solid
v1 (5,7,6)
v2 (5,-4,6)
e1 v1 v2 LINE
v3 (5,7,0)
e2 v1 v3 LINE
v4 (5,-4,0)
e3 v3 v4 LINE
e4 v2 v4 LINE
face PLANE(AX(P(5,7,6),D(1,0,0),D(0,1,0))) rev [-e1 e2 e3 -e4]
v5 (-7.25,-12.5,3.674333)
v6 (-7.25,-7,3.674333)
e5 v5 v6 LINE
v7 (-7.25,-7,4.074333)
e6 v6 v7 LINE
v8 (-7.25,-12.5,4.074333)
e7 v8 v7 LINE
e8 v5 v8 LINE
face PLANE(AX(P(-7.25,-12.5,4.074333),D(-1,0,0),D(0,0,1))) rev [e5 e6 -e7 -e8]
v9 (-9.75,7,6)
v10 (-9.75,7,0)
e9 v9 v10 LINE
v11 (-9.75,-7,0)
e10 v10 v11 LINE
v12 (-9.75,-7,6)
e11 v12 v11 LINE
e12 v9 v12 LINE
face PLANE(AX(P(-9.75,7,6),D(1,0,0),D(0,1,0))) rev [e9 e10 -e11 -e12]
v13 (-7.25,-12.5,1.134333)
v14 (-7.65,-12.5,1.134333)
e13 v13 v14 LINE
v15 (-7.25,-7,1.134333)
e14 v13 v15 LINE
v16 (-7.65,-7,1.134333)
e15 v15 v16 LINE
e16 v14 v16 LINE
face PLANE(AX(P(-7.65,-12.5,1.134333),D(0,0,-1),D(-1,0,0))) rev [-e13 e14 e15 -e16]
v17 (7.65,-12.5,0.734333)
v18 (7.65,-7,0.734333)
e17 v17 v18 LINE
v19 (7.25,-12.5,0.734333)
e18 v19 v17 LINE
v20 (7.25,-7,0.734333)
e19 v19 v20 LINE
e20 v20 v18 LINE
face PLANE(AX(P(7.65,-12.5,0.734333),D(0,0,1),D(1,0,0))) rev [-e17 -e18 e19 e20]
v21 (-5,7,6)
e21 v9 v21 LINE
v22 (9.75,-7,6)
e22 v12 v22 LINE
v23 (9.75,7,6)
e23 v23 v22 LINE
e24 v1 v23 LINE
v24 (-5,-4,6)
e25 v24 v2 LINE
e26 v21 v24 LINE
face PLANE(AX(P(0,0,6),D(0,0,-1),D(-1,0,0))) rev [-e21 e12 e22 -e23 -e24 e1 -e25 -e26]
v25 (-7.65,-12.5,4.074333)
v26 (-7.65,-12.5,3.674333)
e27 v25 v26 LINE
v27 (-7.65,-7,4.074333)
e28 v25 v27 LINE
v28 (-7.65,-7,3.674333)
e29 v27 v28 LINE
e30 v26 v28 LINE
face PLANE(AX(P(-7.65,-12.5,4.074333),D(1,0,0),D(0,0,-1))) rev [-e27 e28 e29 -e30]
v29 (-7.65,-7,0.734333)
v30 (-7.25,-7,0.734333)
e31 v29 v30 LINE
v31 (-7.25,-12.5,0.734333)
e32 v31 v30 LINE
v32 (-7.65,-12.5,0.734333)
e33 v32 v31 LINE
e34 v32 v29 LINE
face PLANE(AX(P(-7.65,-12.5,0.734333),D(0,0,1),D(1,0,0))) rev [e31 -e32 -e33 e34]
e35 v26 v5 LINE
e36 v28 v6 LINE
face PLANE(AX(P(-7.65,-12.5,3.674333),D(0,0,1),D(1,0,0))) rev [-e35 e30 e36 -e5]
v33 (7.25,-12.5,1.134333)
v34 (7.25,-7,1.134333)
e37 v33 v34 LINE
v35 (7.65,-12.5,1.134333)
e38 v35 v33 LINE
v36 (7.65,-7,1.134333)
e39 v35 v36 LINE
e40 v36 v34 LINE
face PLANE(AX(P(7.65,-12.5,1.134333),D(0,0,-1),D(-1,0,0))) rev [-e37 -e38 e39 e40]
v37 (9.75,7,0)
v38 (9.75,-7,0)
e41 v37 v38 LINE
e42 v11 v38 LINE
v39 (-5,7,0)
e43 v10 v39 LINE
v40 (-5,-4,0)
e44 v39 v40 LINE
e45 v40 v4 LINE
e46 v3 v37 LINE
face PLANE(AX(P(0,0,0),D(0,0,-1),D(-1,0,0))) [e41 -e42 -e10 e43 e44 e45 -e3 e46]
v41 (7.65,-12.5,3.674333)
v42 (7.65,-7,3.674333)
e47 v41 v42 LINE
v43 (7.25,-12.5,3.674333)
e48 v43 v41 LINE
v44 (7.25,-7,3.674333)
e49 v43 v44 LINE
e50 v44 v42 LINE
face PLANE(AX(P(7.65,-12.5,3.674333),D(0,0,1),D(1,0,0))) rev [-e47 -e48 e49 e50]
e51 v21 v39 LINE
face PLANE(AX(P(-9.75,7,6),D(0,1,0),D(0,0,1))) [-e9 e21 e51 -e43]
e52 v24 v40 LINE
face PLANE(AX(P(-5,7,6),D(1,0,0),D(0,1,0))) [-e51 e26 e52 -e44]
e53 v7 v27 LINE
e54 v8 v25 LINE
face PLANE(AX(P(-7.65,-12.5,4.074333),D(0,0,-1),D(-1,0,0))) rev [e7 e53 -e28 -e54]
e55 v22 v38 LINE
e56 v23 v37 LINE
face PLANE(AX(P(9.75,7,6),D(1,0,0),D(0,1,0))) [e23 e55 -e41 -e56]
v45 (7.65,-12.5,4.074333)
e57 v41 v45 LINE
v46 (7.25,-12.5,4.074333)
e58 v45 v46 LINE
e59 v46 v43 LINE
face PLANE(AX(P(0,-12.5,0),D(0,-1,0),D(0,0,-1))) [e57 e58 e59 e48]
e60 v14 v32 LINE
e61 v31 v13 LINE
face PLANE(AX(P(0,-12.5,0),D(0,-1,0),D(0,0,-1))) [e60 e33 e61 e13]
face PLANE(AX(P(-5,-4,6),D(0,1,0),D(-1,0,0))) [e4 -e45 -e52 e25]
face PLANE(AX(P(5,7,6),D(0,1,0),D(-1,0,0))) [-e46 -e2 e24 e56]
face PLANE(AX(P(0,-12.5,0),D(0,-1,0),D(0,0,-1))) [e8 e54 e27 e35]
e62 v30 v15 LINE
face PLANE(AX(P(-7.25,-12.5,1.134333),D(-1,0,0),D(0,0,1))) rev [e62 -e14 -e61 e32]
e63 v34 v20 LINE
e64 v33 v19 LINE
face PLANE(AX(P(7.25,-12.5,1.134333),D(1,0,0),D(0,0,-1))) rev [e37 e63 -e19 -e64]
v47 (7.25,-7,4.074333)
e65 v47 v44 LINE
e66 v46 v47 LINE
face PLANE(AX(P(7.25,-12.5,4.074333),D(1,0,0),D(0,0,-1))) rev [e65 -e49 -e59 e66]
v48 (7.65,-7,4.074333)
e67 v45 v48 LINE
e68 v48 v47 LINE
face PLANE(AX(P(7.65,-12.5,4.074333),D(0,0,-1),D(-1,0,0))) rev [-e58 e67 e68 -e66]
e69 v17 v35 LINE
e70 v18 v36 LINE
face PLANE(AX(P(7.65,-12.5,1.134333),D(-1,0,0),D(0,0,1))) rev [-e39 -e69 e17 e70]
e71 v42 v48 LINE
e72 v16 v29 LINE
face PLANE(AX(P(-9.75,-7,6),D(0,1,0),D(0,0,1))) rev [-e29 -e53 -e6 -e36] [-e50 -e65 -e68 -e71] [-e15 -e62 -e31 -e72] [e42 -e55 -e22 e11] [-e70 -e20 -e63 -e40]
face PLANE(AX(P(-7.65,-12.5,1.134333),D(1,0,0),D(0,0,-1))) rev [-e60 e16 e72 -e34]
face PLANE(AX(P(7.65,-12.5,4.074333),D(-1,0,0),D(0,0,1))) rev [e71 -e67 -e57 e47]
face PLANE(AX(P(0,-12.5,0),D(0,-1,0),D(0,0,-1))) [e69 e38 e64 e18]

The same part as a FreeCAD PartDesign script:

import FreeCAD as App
import Part
import Sketcher

V = App.Vector
Q = App.Units.Quantity


def add_polygon(sketch, points):
    """Adds a closed chain of lines whose ends are joined by coincident constraints."""
    first, n = sketch.GeometryCount, len(points)
    for a, b in zip(points, points[1:] + points[:1]):
        sketch.addGeometry(Part.LineSegment(App.Vector(*a, 0), App.Vector(*b, 0)), False)
    for i in range(n):
        sketch.addConstraint(Sketcher.Constraint("Coincident", first + i, 2, first + (i + 1) % n, 1))

doc = App.newDocument("Part")
params = doc.addObject("Spreadsheet::Sheet", "Params")
for row, (alias, value) in enumerate([
    ("sketch1_width", "10 mm"),
    ("sketch1_height", "11 mm"),
    ("sketch1_height2", "14 mm"),
    ("sketch1_width2", "19.5 mm"),
    ("pad1_length", "6 mm"),
    ("sketch2_width", "0.4 mm"),
    ("pad2_length", "5.5 mm"),
], start=1):
    params.set(f"A{row}", alias)
    params.set(f"B{row}", "=" + value)
    params.setAlias(f"B{row}", alias)

body = doc.addObject("PartDesign::Body", "Body")

sketch1 = body.newObject("Sketcher::SketchObject", "Sketch")
sketch1.AttachmentSupport = (doc.getObject("XY_Plane"), [""])
sketch1.MapMode = "FlatFace"
add_polygon(sketch1, [(-5, -4), (-5, 7), (-9.75, 7), (-9.75, -7), (9.75, -7), (9.75, 7), (5, 7), (5, -4)])
sketch1.addConstraint(Sketcher.Constraint("Vertical", 0))
sketch1.addConstraint(Sketcher.Constraint("Horizontal", 1))
sketch1.addConstraint(Sketcher.Constraint("Vertical", 2))
sketch1.addConstraint(Sketcher.Constraint("Horizontal", 3))
sketch1.addConstraint(Sketcher.Constraint("Vertical", 4))
sketch1.addConstraint(Sketcher.Constraint("Horizontal", 5))
sketch1.addConstraint(Sketcher.Constraint("Vertical", 6))
sketch1.addConstraint(Sketcher.Constraint("Horizontal", 7))
sketch1.addConstraint(Sketcher.Constraint("Symmetric", 1, 2, 3, 2, -1, 1))
sketch1.addConstraint(Sketcher.Constraint("Symmetric", 0, 2, 5, 2, -2))
sketch1.addConstraint(Sketcher.Constraint("DistanceX", 7, 2, 7, 1, Q("10 mm")))
sketch1.addConstraint(Sketcher.Constraint("DistanceY", 0, 1, 0, 2, Q("11 mm")))
sketch1.addConstraint(Sketcher.Constraint("DistanceY", 2, 2, 2, 1, Q("14 mm")))
sketch1.addConstraint(Sketcher.Constraint("DistanceX", 3, 1, 3, 2, Q("19.5 mm")))
sketch1.setExpression("Constraints[18]", "Params.sketch1_width")
sketch1.setExpression("Constraints[19]", "Params.sketch1_height")
sketch1.setExpression("Constraints[20]", "Params.sketch1_height2")
sketch1.setExpression("Constraints[21]", "Params.sketch1_width2")
pad1 = body.newObject("PartDesign::Pad", "Pad")
pad1.Profile = sketch1
pad1.setExpression("Length", "Params.pad1_length")

sketch2 = body.newObject("Sketcher::SketchObject", "Sketch001")
sketch2.AttachmentSupport = (doc.getObject("XZ_Plane"), [""])
sketch2.MapMode = "FlatFace"
sketch2.AttachmentOffset = App.Placement(V(0, 0, 7), App.Rotation())
add_polygon(sketch2, [(-7.65, 4.074333), (-7.65, 3.674333), (-7.25, 3.674333), (-7.25, 4.074333)])
add_polygon(sketch2, [(7.25, 4.074333), (7.25, 3.674333), (7.65, 3.674333), (7.65, 4.074333)])
add_polygon(sketch2, [(7.25, 1.134333), (7.25, 0.734333), (7.65, 0.734333), (7.65, 1.134333)])
add_polygon(sketch2, [(-7.65, 1.134333), (-7.65, 0.734333), (-7.25, 0.734333), (-7.25, 1.134333)])
sketch2.addConstraint(Sketcher.Constraint("Vertical", 0))
sketch2.addConstraint(Sketcher.Constraint("Horizontal", 1))
sketch2.addConstraint(Sketcher.Constraint("Vertical", 2))
sketch2.addConstraint(Sketcher.Constraint("Horizontal", 3))
sketch2.addConstraint(Sketcher.Constraint("Vertical", 4))
sketch2.addConstraint(Sketcher.Constraint("Horizontal", 5))
sketch2.addConstraint(Sketcher.Constraint("Vertical", 6))
sketch2.addConstraint(Sketcher.Constraint("Horizontal", 7))
sketch2.addConstraint(Sketcher.Constraint("Vertical", 8))
sketch2.addConstraint(Sketcher.Constraint("Horizontal", 9))
sketch2.addConstraint(Sketcher.Constraint("Vertical", 10))
sketch2.addConstraint(Sketcher.Constraint("Horizontal", 11))
sketch2.addConstraint(Sketcher.Constraint("Vertical", 12))
sketch2.addConstraint(Sketcher.Constraint("Horizontal", 13))
sketch2.addConstraint(Sketcher.Constraint("Vertical", 14))
sketch2.addConstraint(Sketcher.Constraint("Horizontal", 15))
sketch2.addConstraint(Sketcher.Constraint("Symmetric", 1, 2, 4, 2, -2))
sketch2.addConstraint(Sketcher.Constraint("Symmetric", 3, 2, 6, 2, -2))
sketch2.addConstraint(Sketcher.Constraint("Symmetric", 9, 2, 12, 2, -2))
sketch2.addConstraint(Sketcher.Constraint("Symmetric", 11, 2, 14, 2, -2))
sketch2.addConstraint(Sketcher.Constraint("Vertical", 7, 2, 8, 2))
sketch2.addConstraint(Sketcher.Constraint("Vertical", 6, 2, 9, 2))
sketch2.addConstraint(Sketcher.Constraint("Equal", 15, 0))
sketch2.addConstraint(Sketcher.Constraint("Equal", 6, 8))
sketch2.addConstraint(Sketcher.Constraint("DistanceX", 1, 1, 1, 2, Q("0.4 mm")))
sketch2.addConstraint(Sketcher.Constraint("DistanceX", 1, 2, 4, 2, Q("14.5 mm")))
sketch2.addConstraint(Sketcher.Constraint("DistanceY", 8, 2, 4, 2, Q("2.94 mm")))
sketch2.addConstraint(Sketcher.Constraint("DistanceY", -1, 1, 0, 2, Q("3.674333 mm")))
sketch2.setExpression("Constraints[40]", "Params.sketch2_width")
pad2 = body.newObject("PartDesign::Pad", "Pad001")
pad2.Profile = sketch2
pad2.setExpression("Length", "Params.pad2_length")

doc.recompute()
